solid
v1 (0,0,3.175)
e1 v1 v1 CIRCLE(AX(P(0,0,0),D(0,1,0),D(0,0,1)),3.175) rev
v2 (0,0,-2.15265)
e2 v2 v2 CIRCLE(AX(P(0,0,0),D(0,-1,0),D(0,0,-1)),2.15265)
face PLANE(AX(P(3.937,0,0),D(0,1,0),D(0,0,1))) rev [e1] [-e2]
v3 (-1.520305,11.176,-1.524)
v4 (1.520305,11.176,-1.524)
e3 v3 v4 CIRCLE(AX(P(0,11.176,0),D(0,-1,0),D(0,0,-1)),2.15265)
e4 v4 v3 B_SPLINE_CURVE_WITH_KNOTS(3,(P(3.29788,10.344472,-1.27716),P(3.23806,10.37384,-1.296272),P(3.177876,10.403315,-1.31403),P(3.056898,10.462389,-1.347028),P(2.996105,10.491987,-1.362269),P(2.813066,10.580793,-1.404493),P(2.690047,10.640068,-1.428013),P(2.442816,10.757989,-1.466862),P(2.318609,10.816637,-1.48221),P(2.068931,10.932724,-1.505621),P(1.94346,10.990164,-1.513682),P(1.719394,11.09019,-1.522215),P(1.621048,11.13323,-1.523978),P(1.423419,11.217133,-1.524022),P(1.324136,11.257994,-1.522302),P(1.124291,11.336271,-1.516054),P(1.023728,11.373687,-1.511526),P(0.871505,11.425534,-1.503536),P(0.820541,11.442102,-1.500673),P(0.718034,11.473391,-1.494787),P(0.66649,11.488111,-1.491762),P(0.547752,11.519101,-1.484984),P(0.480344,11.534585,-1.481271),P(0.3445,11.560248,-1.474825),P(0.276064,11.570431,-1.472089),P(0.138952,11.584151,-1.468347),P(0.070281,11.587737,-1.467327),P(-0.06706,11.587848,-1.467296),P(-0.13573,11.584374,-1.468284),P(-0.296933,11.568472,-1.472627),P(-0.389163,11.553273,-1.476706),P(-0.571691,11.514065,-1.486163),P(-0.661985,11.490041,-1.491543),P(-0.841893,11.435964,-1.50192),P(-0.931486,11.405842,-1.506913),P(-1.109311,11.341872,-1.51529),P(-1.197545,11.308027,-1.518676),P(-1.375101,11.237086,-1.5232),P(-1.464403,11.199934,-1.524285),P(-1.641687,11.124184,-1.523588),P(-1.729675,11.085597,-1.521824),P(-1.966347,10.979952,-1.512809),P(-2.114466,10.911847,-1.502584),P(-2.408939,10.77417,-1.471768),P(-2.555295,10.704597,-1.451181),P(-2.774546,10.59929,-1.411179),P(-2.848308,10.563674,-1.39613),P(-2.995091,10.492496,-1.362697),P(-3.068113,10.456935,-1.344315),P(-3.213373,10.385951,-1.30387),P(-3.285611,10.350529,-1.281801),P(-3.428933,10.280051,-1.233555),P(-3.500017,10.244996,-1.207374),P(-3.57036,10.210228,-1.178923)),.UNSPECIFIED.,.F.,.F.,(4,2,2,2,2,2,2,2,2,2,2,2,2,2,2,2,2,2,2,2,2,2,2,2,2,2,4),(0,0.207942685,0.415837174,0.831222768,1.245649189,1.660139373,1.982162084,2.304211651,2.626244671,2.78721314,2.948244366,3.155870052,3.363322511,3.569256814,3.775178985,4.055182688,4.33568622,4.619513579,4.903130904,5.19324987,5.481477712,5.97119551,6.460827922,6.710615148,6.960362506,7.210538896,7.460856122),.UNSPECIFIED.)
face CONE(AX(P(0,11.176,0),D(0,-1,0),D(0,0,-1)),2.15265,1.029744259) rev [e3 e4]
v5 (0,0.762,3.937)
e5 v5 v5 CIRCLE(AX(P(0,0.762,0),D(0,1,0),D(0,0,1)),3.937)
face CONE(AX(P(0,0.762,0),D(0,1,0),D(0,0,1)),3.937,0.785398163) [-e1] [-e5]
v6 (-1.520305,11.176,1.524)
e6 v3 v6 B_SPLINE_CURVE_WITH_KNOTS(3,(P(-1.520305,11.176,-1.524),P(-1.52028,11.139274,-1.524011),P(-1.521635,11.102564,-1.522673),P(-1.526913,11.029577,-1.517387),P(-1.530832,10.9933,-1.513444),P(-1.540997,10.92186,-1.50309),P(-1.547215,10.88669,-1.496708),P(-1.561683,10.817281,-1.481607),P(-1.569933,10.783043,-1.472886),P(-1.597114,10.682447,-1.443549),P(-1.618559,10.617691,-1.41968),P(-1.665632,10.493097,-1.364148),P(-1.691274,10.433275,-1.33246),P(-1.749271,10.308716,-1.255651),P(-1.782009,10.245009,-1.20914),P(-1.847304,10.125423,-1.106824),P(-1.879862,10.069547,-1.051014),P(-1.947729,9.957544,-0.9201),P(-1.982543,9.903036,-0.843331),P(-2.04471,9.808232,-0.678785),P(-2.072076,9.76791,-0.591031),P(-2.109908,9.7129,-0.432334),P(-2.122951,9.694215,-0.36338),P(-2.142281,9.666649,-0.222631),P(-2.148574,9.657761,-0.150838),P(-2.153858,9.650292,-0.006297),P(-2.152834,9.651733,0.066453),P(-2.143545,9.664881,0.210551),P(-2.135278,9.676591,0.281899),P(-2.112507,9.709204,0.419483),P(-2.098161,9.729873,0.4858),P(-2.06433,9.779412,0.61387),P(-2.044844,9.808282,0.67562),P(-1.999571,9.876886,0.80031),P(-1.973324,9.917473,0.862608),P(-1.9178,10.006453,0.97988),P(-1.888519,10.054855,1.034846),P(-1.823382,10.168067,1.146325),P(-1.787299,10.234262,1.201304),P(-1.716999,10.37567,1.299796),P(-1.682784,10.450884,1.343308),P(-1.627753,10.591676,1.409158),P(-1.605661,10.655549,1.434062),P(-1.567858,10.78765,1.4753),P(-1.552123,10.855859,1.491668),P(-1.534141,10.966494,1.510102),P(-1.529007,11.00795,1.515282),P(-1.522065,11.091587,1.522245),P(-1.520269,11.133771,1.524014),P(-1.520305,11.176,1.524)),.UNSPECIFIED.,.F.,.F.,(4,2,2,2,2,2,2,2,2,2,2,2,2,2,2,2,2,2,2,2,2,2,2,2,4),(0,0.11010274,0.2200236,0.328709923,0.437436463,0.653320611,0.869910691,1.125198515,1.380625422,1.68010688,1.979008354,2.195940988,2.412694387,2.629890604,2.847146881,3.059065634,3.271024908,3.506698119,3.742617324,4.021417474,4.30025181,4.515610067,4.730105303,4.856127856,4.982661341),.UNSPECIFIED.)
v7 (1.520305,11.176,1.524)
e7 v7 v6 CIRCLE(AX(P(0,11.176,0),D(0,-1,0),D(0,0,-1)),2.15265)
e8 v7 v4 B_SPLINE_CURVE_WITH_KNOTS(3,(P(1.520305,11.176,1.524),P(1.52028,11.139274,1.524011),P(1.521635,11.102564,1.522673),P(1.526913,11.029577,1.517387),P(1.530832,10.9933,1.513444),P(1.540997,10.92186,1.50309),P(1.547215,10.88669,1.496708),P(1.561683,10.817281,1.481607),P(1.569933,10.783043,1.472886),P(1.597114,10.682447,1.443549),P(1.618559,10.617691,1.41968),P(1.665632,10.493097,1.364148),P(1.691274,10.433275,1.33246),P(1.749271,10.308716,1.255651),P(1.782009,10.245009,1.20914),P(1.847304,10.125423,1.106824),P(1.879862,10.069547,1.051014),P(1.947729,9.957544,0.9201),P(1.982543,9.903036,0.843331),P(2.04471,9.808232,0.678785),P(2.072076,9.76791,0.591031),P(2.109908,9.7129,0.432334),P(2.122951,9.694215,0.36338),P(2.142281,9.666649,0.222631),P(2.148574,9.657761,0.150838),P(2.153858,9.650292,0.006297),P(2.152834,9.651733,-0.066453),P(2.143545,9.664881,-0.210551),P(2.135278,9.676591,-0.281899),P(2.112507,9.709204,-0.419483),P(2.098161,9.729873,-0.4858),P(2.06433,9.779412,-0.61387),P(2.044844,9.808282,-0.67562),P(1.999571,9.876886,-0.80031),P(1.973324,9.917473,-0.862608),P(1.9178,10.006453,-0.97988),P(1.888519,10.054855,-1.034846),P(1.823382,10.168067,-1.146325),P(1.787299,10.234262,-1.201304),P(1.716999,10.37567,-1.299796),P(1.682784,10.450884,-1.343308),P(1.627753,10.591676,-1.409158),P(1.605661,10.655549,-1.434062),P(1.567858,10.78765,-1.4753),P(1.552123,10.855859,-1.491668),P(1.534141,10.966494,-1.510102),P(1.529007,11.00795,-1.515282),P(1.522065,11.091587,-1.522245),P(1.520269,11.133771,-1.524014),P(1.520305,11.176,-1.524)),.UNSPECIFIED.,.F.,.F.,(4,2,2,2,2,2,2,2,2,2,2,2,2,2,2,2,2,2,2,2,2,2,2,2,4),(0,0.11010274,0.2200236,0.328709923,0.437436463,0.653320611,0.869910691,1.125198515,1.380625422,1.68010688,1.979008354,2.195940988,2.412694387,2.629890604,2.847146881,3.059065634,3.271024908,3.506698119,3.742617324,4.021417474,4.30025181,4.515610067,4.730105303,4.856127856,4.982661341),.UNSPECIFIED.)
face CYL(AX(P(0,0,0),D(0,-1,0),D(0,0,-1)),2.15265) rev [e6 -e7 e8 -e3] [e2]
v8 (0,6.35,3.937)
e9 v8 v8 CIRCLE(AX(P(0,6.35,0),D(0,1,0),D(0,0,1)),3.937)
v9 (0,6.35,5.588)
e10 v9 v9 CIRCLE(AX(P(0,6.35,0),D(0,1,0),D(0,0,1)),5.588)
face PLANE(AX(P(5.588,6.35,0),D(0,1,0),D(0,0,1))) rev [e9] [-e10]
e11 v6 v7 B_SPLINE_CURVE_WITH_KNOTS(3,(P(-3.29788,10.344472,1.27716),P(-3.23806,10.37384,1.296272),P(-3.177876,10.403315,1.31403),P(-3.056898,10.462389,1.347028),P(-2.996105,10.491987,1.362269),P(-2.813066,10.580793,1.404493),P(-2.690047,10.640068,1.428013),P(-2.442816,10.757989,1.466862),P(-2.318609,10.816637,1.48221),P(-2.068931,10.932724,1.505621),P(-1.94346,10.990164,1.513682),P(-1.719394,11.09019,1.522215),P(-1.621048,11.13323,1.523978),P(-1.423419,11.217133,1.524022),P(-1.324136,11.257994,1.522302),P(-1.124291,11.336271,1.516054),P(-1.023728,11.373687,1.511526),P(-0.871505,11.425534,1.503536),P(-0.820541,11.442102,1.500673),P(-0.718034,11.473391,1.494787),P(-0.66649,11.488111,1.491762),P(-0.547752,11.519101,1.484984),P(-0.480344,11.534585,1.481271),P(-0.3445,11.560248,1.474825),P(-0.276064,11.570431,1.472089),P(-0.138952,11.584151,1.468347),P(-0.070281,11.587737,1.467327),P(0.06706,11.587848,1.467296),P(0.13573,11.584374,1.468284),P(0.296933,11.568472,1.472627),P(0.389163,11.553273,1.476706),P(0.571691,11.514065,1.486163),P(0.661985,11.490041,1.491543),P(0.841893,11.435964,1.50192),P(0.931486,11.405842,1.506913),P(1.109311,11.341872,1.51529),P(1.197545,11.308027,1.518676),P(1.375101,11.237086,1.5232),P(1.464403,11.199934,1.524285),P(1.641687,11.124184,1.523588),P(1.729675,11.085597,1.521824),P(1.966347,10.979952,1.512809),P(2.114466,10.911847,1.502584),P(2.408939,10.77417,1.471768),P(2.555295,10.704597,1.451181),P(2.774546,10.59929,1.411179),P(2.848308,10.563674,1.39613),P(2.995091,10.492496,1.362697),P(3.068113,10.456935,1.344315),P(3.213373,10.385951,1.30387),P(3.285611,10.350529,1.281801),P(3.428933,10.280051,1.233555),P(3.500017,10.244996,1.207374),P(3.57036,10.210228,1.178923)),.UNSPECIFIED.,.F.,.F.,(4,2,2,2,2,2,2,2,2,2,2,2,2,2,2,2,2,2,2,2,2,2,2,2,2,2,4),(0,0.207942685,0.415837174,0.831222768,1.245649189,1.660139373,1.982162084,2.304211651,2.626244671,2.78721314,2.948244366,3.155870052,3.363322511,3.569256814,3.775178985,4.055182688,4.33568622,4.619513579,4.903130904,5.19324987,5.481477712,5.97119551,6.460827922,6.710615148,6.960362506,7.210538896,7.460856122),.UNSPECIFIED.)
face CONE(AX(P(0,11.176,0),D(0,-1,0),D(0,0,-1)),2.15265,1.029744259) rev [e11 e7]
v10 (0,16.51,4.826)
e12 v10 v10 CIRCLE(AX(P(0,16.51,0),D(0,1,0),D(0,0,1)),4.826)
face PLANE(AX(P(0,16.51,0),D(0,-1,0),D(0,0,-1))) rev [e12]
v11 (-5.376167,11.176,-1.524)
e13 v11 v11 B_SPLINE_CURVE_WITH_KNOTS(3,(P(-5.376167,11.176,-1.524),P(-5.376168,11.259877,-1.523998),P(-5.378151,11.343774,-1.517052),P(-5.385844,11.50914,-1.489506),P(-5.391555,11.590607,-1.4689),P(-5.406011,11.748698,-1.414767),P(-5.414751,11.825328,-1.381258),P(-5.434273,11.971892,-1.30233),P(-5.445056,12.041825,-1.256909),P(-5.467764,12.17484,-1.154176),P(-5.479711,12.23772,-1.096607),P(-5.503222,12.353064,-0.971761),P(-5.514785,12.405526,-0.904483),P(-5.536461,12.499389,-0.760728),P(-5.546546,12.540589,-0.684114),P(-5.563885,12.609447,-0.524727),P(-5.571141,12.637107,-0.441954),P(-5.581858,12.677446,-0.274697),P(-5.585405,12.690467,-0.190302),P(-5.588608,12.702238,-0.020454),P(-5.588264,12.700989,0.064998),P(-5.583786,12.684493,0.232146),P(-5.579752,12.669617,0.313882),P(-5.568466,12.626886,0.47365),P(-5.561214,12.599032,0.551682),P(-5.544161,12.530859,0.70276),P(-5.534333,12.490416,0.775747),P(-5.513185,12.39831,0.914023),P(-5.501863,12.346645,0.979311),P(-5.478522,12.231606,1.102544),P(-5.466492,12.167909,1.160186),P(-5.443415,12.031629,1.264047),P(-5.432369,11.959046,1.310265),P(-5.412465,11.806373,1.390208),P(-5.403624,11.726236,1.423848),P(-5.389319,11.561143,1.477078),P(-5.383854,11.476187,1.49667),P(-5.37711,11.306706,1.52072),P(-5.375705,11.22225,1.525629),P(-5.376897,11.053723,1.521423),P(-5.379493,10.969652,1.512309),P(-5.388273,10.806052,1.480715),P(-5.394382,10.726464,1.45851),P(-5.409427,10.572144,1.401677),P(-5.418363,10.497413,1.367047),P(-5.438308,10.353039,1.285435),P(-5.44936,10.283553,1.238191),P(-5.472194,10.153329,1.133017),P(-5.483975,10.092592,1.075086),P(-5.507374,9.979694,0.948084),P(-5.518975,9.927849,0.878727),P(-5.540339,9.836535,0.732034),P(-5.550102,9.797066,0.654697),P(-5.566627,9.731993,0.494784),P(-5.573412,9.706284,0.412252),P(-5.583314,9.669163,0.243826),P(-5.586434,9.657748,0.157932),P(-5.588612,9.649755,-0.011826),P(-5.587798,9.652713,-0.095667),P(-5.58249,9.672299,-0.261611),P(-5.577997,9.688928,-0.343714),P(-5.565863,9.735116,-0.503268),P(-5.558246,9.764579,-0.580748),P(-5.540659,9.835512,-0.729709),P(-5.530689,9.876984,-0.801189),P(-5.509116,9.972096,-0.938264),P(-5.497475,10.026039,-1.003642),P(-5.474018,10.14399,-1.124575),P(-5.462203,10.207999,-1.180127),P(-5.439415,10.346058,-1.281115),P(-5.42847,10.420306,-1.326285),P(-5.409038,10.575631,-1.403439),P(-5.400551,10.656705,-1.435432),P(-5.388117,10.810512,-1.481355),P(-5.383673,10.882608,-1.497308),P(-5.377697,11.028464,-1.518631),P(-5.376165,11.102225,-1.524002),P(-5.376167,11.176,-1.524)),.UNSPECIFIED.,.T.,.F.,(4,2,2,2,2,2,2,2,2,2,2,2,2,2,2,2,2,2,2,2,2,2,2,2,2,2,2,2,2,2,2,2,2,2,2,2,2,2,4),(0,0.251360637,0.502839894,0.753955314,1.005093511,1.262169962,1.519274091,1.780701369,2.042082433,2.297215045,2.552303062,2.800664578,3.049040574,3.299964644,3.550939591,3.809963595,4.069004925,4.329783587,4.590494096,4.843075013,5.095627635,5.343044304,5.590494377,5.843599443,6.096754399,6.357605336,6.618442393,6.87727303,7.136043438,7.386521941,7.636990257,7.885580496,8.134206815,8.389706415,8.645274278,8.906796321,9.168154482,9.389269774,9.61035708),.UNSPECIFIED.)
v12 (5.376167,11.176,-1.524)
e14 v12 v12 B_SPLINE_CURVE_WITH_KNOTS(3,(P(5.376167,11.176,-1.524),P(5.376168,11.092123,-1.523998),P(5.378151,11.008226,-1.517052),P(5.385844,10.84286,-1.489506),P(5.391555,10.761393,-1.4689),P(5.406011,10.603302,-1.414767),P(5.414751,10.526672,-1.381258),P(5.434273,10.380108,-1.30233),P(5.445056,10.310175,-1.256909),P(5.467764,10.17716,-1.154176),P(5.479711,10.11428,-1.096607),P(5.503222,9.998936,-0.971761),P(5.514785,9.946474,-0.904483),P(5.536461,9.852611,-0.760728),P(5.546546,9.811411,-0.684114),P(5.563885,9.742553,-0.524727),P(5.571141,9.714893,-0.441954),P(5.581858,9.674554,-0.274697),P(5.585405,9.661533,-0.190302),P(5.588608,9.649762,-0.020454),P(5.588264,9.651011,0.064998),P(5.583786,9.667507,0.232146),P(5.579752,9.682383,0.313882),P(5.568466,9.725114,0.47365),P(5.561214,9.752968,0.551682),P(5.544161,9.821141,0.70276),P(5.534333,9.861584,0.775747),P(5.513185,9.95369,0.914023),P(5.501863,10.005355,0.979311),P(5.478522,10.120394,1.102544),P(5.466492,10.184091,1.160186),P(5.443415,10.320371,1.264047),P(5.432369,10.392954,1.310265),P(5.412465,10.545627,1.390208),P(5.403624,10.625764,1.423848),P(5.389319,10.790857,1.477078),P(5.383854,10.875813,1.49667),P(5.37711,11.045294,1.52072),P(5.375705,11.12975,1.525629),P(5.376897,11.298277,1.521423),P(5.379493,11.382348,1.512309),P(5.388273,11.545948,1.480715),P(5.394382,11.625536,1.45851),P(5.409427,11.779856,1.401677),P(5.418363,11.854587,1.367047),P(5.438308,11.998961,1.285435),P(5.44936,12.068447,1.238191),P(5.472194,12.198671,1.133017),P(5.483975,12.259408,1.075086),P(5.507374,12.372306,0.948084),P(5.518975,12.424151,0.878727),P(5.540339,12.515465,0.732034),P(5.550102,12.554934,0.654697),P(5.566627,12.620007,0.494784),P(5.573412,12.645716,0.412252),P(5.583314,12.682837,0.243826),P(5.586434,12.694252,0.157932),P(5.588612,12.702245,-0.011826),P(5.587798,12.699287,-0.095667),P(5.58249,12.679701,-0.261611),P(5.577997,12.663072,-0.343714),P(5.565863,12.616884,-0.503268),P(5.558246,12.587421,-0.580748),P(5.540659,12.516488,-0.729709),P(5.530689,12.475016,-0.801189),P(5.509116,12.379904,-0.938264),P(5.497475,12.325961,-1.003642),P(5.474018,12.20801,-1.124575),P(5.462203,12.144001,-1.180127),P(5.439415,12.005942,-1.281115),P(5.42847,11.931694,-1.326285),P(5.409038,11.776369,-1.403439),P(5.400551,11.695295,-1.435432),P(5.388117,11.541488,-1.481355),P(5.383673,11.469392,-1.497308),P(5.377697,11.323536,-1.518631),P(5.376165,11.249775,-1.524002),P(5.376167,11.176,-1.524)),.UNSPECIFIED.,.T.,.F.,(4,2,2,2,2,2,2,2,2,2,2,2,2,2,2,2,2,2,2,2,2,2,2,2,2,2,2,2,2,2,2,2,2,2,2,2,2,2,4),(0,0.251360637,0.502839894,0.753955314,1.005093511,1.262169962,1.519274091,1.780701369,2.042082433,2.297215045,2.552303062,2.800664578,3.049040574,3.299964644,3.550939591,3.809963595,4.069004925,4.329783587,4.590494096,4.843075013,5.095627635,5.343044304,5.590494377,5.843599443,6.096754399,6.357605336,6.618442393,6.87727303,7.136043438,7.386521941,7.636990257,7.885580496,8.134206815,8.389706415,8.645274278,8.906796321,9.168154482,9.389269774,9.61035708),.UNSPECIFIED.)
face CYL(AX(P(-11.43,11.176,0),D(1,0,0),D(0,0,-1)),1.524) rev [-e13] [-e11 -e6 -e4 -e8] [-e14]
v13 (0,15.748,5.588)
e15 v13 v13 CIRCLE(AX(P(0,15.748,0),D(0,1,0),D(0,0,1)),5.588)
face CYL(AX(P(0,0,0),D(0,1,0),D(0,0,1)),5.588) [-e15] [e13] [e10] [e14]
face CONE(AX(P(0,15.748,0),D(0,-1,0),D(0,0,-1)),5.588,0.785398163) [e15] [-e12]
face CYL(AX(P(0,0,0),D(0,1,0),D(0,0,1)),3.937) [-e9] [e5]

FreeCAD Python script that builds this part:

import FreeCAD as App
import Part
import Sketcher
Q = App.Units.Quantity


def edges_at(feature, points):
    """Names of the edges that pass closest to the given points."""
    edges = feature.Shape.Edges
    near = lambda p: min(range(len(edges)), key=lambda i: edges[i].distToShape(Part.Vertex(*p))[0])
    return sorted({f"Edge{near(p) + 1}" for p in points})


def add_polygon(sketch, points):
    """Adds a closed chain of lines whose ends are joined by coincident constraints."""
    first, n = sketch.GeometryCount, len(points)
    for a, b in zip(points, points[1:] + points[:1]):
        sketch.addGeometry(Part.LineSegment(App.Vector(*a, 0), App.Vector(*b, 0)), False)
    for i in range(n):
        sketch.addConstraint(Sketcher.Constraint("Coincident", first + i, 2, first + (i + 1) % n, 1))

doc = App.newDocument("Part")
body = doc.addObject("PartDesign::Body", "Body")

# Sketch on XY plane
sketch1 = doc.addObject("Sketcher::SketchObject", "Sketch")
body.addObject(sketch1)
sketch1.AttachmentSupport = (doc.XY_Plane, [""])
sketch1.MapMode = "FlatFace"
add_polygon(sketch1, [(0, 16.5), (0, 0), (3.9, 0), (3.9, 6.3), (5.6, 6.3), (5.6, 15.7), (4.8, 16.5)])  # lines 0-6
sketch1.addConstraint(Sketcher.Constraint("Vertical", 0))
sketch1.addConstraint(Sketcher.Constraint("Horizontal", 1))
sketch1.addConstraint(Sketcher.Constraint("Vertical", 2))
sketch1.addConstraint(Sketcher.Constraint("Horizontal", 3))
sketch1.addConstraint(Sketcher.Constraint("Vertical", 4))
sketch1.addConstraint(Sketcher.Constraint("Horizontal", 6))
sketch1.addConstraint(Sketcher.Constraint("Coincident", 0, 2, -1, 1))
sketch1.addConstraint(Sketcher.Constraint("Angle", 5, Q("135 deg")))
sketch1.addConstraint(Sketcher.Constraint("DistanceX", 6, 2, 6, 1, Q("0.19 in")))
sketch1.addConstraint(Sketcher.Constraint("DistanceY", 0, 2, 0, 1, Q("0.65 in")))
sketch1.addConstraint(Sketcher.Constraint("DistanceY", 2, 1, 2, 2, Q("0.25 in")))
sketch1.addConstraint(Sketcher.Constraint("DistanceY", 4, 1, 4, 2, Q("0.37 in")))
sketch1.addConstraint(Sketcher.Constraint("DistanceX", 1, 1, 1, 2, Q("0.155 in")))
revolution = doc.addObject("PartDesign::Revolution", "Revolution")
body.addObject(revolution)
revolution.Profile = sketch1
revolution.ReferenceAxis = (sketch1, ["V_Axis"])
revolution.Angle = 360

# Sketch on XZ plane
sketch2 = doc.addObject("Sketcher::SketchObject", "Sketch001")
body.addObject(sketch2)
sketch2.AttachmentSupport = (doc.XZ_Plane, [""])
sketch2.MapMode = "FlatFace"
sketch2.addGeometry(Part.Circle(App.Vector(0, 0, 0), App.Vector(0, 0, 1), 2.2), False)
sketch2.addConstraint(Sketcher.Constraint("Coincident", 0, 3, -1, 1))
sketch2.addConstraint(Sketcher.Constraint("Diameter", 0, Q("0.1695 in")))
doc.recompute()
hole = doc.addObject("PartDesign::Hole", "Hole")
body.addObject(hole)
hole.Profile = sketch2
hole.ThreadType = "None"
hole.Diameter = Q("0.1695 in")
hole.DepthType = "Dimension"
hole.Depth = Q("0.44 in")
hole.DrillPoint = "Angled"
hole.DrillPointAngle = 118

# Sketch on YZ plane
sketch3 = doc.addObject("Sketcher::SketchObject", "Sketch002")
body.addObject(sketch3)
sketch3.AttachmentSupport = (doc.YZ_Plane, [""])
sketch3.MapMode = "FlatFace"
sketch3.addGeometry(Part.Circle(App.Vector(11.2, 0, 0), App.Vector(0, 0, 1), 1.5), False)
sketch3.addConstraint(Sketcher.Constraint("PointOnObject", 0, 3, -1))
sketch3.addConstraint(Sketcher.Constraint("Diameter", 0, Q("0.12 in")))
sketch3.addConstraint(Sketcher.Constraint("DistanceX", -1, 1, 0, 3, Q("0.44 in")))
pocket1 = doc.addObject("PartDesign::Pocket", "Pocket")
body.addObject(pocket1)
pocket1.Profile = sketch3
pocket1.Length = Q("0.9 in")
pocket1.Midplane = True
doc.recompute()

chamfer = doc.addObject("PartDesign::Chamfer", "Chamfer")
body.addObject(chamfer)
chamfer.Base = (pocket1, edges_at(pocket1, [(0, 0, -3.937)]))
chamfer.Size = Q("0.03 in")

doc.recompute()
